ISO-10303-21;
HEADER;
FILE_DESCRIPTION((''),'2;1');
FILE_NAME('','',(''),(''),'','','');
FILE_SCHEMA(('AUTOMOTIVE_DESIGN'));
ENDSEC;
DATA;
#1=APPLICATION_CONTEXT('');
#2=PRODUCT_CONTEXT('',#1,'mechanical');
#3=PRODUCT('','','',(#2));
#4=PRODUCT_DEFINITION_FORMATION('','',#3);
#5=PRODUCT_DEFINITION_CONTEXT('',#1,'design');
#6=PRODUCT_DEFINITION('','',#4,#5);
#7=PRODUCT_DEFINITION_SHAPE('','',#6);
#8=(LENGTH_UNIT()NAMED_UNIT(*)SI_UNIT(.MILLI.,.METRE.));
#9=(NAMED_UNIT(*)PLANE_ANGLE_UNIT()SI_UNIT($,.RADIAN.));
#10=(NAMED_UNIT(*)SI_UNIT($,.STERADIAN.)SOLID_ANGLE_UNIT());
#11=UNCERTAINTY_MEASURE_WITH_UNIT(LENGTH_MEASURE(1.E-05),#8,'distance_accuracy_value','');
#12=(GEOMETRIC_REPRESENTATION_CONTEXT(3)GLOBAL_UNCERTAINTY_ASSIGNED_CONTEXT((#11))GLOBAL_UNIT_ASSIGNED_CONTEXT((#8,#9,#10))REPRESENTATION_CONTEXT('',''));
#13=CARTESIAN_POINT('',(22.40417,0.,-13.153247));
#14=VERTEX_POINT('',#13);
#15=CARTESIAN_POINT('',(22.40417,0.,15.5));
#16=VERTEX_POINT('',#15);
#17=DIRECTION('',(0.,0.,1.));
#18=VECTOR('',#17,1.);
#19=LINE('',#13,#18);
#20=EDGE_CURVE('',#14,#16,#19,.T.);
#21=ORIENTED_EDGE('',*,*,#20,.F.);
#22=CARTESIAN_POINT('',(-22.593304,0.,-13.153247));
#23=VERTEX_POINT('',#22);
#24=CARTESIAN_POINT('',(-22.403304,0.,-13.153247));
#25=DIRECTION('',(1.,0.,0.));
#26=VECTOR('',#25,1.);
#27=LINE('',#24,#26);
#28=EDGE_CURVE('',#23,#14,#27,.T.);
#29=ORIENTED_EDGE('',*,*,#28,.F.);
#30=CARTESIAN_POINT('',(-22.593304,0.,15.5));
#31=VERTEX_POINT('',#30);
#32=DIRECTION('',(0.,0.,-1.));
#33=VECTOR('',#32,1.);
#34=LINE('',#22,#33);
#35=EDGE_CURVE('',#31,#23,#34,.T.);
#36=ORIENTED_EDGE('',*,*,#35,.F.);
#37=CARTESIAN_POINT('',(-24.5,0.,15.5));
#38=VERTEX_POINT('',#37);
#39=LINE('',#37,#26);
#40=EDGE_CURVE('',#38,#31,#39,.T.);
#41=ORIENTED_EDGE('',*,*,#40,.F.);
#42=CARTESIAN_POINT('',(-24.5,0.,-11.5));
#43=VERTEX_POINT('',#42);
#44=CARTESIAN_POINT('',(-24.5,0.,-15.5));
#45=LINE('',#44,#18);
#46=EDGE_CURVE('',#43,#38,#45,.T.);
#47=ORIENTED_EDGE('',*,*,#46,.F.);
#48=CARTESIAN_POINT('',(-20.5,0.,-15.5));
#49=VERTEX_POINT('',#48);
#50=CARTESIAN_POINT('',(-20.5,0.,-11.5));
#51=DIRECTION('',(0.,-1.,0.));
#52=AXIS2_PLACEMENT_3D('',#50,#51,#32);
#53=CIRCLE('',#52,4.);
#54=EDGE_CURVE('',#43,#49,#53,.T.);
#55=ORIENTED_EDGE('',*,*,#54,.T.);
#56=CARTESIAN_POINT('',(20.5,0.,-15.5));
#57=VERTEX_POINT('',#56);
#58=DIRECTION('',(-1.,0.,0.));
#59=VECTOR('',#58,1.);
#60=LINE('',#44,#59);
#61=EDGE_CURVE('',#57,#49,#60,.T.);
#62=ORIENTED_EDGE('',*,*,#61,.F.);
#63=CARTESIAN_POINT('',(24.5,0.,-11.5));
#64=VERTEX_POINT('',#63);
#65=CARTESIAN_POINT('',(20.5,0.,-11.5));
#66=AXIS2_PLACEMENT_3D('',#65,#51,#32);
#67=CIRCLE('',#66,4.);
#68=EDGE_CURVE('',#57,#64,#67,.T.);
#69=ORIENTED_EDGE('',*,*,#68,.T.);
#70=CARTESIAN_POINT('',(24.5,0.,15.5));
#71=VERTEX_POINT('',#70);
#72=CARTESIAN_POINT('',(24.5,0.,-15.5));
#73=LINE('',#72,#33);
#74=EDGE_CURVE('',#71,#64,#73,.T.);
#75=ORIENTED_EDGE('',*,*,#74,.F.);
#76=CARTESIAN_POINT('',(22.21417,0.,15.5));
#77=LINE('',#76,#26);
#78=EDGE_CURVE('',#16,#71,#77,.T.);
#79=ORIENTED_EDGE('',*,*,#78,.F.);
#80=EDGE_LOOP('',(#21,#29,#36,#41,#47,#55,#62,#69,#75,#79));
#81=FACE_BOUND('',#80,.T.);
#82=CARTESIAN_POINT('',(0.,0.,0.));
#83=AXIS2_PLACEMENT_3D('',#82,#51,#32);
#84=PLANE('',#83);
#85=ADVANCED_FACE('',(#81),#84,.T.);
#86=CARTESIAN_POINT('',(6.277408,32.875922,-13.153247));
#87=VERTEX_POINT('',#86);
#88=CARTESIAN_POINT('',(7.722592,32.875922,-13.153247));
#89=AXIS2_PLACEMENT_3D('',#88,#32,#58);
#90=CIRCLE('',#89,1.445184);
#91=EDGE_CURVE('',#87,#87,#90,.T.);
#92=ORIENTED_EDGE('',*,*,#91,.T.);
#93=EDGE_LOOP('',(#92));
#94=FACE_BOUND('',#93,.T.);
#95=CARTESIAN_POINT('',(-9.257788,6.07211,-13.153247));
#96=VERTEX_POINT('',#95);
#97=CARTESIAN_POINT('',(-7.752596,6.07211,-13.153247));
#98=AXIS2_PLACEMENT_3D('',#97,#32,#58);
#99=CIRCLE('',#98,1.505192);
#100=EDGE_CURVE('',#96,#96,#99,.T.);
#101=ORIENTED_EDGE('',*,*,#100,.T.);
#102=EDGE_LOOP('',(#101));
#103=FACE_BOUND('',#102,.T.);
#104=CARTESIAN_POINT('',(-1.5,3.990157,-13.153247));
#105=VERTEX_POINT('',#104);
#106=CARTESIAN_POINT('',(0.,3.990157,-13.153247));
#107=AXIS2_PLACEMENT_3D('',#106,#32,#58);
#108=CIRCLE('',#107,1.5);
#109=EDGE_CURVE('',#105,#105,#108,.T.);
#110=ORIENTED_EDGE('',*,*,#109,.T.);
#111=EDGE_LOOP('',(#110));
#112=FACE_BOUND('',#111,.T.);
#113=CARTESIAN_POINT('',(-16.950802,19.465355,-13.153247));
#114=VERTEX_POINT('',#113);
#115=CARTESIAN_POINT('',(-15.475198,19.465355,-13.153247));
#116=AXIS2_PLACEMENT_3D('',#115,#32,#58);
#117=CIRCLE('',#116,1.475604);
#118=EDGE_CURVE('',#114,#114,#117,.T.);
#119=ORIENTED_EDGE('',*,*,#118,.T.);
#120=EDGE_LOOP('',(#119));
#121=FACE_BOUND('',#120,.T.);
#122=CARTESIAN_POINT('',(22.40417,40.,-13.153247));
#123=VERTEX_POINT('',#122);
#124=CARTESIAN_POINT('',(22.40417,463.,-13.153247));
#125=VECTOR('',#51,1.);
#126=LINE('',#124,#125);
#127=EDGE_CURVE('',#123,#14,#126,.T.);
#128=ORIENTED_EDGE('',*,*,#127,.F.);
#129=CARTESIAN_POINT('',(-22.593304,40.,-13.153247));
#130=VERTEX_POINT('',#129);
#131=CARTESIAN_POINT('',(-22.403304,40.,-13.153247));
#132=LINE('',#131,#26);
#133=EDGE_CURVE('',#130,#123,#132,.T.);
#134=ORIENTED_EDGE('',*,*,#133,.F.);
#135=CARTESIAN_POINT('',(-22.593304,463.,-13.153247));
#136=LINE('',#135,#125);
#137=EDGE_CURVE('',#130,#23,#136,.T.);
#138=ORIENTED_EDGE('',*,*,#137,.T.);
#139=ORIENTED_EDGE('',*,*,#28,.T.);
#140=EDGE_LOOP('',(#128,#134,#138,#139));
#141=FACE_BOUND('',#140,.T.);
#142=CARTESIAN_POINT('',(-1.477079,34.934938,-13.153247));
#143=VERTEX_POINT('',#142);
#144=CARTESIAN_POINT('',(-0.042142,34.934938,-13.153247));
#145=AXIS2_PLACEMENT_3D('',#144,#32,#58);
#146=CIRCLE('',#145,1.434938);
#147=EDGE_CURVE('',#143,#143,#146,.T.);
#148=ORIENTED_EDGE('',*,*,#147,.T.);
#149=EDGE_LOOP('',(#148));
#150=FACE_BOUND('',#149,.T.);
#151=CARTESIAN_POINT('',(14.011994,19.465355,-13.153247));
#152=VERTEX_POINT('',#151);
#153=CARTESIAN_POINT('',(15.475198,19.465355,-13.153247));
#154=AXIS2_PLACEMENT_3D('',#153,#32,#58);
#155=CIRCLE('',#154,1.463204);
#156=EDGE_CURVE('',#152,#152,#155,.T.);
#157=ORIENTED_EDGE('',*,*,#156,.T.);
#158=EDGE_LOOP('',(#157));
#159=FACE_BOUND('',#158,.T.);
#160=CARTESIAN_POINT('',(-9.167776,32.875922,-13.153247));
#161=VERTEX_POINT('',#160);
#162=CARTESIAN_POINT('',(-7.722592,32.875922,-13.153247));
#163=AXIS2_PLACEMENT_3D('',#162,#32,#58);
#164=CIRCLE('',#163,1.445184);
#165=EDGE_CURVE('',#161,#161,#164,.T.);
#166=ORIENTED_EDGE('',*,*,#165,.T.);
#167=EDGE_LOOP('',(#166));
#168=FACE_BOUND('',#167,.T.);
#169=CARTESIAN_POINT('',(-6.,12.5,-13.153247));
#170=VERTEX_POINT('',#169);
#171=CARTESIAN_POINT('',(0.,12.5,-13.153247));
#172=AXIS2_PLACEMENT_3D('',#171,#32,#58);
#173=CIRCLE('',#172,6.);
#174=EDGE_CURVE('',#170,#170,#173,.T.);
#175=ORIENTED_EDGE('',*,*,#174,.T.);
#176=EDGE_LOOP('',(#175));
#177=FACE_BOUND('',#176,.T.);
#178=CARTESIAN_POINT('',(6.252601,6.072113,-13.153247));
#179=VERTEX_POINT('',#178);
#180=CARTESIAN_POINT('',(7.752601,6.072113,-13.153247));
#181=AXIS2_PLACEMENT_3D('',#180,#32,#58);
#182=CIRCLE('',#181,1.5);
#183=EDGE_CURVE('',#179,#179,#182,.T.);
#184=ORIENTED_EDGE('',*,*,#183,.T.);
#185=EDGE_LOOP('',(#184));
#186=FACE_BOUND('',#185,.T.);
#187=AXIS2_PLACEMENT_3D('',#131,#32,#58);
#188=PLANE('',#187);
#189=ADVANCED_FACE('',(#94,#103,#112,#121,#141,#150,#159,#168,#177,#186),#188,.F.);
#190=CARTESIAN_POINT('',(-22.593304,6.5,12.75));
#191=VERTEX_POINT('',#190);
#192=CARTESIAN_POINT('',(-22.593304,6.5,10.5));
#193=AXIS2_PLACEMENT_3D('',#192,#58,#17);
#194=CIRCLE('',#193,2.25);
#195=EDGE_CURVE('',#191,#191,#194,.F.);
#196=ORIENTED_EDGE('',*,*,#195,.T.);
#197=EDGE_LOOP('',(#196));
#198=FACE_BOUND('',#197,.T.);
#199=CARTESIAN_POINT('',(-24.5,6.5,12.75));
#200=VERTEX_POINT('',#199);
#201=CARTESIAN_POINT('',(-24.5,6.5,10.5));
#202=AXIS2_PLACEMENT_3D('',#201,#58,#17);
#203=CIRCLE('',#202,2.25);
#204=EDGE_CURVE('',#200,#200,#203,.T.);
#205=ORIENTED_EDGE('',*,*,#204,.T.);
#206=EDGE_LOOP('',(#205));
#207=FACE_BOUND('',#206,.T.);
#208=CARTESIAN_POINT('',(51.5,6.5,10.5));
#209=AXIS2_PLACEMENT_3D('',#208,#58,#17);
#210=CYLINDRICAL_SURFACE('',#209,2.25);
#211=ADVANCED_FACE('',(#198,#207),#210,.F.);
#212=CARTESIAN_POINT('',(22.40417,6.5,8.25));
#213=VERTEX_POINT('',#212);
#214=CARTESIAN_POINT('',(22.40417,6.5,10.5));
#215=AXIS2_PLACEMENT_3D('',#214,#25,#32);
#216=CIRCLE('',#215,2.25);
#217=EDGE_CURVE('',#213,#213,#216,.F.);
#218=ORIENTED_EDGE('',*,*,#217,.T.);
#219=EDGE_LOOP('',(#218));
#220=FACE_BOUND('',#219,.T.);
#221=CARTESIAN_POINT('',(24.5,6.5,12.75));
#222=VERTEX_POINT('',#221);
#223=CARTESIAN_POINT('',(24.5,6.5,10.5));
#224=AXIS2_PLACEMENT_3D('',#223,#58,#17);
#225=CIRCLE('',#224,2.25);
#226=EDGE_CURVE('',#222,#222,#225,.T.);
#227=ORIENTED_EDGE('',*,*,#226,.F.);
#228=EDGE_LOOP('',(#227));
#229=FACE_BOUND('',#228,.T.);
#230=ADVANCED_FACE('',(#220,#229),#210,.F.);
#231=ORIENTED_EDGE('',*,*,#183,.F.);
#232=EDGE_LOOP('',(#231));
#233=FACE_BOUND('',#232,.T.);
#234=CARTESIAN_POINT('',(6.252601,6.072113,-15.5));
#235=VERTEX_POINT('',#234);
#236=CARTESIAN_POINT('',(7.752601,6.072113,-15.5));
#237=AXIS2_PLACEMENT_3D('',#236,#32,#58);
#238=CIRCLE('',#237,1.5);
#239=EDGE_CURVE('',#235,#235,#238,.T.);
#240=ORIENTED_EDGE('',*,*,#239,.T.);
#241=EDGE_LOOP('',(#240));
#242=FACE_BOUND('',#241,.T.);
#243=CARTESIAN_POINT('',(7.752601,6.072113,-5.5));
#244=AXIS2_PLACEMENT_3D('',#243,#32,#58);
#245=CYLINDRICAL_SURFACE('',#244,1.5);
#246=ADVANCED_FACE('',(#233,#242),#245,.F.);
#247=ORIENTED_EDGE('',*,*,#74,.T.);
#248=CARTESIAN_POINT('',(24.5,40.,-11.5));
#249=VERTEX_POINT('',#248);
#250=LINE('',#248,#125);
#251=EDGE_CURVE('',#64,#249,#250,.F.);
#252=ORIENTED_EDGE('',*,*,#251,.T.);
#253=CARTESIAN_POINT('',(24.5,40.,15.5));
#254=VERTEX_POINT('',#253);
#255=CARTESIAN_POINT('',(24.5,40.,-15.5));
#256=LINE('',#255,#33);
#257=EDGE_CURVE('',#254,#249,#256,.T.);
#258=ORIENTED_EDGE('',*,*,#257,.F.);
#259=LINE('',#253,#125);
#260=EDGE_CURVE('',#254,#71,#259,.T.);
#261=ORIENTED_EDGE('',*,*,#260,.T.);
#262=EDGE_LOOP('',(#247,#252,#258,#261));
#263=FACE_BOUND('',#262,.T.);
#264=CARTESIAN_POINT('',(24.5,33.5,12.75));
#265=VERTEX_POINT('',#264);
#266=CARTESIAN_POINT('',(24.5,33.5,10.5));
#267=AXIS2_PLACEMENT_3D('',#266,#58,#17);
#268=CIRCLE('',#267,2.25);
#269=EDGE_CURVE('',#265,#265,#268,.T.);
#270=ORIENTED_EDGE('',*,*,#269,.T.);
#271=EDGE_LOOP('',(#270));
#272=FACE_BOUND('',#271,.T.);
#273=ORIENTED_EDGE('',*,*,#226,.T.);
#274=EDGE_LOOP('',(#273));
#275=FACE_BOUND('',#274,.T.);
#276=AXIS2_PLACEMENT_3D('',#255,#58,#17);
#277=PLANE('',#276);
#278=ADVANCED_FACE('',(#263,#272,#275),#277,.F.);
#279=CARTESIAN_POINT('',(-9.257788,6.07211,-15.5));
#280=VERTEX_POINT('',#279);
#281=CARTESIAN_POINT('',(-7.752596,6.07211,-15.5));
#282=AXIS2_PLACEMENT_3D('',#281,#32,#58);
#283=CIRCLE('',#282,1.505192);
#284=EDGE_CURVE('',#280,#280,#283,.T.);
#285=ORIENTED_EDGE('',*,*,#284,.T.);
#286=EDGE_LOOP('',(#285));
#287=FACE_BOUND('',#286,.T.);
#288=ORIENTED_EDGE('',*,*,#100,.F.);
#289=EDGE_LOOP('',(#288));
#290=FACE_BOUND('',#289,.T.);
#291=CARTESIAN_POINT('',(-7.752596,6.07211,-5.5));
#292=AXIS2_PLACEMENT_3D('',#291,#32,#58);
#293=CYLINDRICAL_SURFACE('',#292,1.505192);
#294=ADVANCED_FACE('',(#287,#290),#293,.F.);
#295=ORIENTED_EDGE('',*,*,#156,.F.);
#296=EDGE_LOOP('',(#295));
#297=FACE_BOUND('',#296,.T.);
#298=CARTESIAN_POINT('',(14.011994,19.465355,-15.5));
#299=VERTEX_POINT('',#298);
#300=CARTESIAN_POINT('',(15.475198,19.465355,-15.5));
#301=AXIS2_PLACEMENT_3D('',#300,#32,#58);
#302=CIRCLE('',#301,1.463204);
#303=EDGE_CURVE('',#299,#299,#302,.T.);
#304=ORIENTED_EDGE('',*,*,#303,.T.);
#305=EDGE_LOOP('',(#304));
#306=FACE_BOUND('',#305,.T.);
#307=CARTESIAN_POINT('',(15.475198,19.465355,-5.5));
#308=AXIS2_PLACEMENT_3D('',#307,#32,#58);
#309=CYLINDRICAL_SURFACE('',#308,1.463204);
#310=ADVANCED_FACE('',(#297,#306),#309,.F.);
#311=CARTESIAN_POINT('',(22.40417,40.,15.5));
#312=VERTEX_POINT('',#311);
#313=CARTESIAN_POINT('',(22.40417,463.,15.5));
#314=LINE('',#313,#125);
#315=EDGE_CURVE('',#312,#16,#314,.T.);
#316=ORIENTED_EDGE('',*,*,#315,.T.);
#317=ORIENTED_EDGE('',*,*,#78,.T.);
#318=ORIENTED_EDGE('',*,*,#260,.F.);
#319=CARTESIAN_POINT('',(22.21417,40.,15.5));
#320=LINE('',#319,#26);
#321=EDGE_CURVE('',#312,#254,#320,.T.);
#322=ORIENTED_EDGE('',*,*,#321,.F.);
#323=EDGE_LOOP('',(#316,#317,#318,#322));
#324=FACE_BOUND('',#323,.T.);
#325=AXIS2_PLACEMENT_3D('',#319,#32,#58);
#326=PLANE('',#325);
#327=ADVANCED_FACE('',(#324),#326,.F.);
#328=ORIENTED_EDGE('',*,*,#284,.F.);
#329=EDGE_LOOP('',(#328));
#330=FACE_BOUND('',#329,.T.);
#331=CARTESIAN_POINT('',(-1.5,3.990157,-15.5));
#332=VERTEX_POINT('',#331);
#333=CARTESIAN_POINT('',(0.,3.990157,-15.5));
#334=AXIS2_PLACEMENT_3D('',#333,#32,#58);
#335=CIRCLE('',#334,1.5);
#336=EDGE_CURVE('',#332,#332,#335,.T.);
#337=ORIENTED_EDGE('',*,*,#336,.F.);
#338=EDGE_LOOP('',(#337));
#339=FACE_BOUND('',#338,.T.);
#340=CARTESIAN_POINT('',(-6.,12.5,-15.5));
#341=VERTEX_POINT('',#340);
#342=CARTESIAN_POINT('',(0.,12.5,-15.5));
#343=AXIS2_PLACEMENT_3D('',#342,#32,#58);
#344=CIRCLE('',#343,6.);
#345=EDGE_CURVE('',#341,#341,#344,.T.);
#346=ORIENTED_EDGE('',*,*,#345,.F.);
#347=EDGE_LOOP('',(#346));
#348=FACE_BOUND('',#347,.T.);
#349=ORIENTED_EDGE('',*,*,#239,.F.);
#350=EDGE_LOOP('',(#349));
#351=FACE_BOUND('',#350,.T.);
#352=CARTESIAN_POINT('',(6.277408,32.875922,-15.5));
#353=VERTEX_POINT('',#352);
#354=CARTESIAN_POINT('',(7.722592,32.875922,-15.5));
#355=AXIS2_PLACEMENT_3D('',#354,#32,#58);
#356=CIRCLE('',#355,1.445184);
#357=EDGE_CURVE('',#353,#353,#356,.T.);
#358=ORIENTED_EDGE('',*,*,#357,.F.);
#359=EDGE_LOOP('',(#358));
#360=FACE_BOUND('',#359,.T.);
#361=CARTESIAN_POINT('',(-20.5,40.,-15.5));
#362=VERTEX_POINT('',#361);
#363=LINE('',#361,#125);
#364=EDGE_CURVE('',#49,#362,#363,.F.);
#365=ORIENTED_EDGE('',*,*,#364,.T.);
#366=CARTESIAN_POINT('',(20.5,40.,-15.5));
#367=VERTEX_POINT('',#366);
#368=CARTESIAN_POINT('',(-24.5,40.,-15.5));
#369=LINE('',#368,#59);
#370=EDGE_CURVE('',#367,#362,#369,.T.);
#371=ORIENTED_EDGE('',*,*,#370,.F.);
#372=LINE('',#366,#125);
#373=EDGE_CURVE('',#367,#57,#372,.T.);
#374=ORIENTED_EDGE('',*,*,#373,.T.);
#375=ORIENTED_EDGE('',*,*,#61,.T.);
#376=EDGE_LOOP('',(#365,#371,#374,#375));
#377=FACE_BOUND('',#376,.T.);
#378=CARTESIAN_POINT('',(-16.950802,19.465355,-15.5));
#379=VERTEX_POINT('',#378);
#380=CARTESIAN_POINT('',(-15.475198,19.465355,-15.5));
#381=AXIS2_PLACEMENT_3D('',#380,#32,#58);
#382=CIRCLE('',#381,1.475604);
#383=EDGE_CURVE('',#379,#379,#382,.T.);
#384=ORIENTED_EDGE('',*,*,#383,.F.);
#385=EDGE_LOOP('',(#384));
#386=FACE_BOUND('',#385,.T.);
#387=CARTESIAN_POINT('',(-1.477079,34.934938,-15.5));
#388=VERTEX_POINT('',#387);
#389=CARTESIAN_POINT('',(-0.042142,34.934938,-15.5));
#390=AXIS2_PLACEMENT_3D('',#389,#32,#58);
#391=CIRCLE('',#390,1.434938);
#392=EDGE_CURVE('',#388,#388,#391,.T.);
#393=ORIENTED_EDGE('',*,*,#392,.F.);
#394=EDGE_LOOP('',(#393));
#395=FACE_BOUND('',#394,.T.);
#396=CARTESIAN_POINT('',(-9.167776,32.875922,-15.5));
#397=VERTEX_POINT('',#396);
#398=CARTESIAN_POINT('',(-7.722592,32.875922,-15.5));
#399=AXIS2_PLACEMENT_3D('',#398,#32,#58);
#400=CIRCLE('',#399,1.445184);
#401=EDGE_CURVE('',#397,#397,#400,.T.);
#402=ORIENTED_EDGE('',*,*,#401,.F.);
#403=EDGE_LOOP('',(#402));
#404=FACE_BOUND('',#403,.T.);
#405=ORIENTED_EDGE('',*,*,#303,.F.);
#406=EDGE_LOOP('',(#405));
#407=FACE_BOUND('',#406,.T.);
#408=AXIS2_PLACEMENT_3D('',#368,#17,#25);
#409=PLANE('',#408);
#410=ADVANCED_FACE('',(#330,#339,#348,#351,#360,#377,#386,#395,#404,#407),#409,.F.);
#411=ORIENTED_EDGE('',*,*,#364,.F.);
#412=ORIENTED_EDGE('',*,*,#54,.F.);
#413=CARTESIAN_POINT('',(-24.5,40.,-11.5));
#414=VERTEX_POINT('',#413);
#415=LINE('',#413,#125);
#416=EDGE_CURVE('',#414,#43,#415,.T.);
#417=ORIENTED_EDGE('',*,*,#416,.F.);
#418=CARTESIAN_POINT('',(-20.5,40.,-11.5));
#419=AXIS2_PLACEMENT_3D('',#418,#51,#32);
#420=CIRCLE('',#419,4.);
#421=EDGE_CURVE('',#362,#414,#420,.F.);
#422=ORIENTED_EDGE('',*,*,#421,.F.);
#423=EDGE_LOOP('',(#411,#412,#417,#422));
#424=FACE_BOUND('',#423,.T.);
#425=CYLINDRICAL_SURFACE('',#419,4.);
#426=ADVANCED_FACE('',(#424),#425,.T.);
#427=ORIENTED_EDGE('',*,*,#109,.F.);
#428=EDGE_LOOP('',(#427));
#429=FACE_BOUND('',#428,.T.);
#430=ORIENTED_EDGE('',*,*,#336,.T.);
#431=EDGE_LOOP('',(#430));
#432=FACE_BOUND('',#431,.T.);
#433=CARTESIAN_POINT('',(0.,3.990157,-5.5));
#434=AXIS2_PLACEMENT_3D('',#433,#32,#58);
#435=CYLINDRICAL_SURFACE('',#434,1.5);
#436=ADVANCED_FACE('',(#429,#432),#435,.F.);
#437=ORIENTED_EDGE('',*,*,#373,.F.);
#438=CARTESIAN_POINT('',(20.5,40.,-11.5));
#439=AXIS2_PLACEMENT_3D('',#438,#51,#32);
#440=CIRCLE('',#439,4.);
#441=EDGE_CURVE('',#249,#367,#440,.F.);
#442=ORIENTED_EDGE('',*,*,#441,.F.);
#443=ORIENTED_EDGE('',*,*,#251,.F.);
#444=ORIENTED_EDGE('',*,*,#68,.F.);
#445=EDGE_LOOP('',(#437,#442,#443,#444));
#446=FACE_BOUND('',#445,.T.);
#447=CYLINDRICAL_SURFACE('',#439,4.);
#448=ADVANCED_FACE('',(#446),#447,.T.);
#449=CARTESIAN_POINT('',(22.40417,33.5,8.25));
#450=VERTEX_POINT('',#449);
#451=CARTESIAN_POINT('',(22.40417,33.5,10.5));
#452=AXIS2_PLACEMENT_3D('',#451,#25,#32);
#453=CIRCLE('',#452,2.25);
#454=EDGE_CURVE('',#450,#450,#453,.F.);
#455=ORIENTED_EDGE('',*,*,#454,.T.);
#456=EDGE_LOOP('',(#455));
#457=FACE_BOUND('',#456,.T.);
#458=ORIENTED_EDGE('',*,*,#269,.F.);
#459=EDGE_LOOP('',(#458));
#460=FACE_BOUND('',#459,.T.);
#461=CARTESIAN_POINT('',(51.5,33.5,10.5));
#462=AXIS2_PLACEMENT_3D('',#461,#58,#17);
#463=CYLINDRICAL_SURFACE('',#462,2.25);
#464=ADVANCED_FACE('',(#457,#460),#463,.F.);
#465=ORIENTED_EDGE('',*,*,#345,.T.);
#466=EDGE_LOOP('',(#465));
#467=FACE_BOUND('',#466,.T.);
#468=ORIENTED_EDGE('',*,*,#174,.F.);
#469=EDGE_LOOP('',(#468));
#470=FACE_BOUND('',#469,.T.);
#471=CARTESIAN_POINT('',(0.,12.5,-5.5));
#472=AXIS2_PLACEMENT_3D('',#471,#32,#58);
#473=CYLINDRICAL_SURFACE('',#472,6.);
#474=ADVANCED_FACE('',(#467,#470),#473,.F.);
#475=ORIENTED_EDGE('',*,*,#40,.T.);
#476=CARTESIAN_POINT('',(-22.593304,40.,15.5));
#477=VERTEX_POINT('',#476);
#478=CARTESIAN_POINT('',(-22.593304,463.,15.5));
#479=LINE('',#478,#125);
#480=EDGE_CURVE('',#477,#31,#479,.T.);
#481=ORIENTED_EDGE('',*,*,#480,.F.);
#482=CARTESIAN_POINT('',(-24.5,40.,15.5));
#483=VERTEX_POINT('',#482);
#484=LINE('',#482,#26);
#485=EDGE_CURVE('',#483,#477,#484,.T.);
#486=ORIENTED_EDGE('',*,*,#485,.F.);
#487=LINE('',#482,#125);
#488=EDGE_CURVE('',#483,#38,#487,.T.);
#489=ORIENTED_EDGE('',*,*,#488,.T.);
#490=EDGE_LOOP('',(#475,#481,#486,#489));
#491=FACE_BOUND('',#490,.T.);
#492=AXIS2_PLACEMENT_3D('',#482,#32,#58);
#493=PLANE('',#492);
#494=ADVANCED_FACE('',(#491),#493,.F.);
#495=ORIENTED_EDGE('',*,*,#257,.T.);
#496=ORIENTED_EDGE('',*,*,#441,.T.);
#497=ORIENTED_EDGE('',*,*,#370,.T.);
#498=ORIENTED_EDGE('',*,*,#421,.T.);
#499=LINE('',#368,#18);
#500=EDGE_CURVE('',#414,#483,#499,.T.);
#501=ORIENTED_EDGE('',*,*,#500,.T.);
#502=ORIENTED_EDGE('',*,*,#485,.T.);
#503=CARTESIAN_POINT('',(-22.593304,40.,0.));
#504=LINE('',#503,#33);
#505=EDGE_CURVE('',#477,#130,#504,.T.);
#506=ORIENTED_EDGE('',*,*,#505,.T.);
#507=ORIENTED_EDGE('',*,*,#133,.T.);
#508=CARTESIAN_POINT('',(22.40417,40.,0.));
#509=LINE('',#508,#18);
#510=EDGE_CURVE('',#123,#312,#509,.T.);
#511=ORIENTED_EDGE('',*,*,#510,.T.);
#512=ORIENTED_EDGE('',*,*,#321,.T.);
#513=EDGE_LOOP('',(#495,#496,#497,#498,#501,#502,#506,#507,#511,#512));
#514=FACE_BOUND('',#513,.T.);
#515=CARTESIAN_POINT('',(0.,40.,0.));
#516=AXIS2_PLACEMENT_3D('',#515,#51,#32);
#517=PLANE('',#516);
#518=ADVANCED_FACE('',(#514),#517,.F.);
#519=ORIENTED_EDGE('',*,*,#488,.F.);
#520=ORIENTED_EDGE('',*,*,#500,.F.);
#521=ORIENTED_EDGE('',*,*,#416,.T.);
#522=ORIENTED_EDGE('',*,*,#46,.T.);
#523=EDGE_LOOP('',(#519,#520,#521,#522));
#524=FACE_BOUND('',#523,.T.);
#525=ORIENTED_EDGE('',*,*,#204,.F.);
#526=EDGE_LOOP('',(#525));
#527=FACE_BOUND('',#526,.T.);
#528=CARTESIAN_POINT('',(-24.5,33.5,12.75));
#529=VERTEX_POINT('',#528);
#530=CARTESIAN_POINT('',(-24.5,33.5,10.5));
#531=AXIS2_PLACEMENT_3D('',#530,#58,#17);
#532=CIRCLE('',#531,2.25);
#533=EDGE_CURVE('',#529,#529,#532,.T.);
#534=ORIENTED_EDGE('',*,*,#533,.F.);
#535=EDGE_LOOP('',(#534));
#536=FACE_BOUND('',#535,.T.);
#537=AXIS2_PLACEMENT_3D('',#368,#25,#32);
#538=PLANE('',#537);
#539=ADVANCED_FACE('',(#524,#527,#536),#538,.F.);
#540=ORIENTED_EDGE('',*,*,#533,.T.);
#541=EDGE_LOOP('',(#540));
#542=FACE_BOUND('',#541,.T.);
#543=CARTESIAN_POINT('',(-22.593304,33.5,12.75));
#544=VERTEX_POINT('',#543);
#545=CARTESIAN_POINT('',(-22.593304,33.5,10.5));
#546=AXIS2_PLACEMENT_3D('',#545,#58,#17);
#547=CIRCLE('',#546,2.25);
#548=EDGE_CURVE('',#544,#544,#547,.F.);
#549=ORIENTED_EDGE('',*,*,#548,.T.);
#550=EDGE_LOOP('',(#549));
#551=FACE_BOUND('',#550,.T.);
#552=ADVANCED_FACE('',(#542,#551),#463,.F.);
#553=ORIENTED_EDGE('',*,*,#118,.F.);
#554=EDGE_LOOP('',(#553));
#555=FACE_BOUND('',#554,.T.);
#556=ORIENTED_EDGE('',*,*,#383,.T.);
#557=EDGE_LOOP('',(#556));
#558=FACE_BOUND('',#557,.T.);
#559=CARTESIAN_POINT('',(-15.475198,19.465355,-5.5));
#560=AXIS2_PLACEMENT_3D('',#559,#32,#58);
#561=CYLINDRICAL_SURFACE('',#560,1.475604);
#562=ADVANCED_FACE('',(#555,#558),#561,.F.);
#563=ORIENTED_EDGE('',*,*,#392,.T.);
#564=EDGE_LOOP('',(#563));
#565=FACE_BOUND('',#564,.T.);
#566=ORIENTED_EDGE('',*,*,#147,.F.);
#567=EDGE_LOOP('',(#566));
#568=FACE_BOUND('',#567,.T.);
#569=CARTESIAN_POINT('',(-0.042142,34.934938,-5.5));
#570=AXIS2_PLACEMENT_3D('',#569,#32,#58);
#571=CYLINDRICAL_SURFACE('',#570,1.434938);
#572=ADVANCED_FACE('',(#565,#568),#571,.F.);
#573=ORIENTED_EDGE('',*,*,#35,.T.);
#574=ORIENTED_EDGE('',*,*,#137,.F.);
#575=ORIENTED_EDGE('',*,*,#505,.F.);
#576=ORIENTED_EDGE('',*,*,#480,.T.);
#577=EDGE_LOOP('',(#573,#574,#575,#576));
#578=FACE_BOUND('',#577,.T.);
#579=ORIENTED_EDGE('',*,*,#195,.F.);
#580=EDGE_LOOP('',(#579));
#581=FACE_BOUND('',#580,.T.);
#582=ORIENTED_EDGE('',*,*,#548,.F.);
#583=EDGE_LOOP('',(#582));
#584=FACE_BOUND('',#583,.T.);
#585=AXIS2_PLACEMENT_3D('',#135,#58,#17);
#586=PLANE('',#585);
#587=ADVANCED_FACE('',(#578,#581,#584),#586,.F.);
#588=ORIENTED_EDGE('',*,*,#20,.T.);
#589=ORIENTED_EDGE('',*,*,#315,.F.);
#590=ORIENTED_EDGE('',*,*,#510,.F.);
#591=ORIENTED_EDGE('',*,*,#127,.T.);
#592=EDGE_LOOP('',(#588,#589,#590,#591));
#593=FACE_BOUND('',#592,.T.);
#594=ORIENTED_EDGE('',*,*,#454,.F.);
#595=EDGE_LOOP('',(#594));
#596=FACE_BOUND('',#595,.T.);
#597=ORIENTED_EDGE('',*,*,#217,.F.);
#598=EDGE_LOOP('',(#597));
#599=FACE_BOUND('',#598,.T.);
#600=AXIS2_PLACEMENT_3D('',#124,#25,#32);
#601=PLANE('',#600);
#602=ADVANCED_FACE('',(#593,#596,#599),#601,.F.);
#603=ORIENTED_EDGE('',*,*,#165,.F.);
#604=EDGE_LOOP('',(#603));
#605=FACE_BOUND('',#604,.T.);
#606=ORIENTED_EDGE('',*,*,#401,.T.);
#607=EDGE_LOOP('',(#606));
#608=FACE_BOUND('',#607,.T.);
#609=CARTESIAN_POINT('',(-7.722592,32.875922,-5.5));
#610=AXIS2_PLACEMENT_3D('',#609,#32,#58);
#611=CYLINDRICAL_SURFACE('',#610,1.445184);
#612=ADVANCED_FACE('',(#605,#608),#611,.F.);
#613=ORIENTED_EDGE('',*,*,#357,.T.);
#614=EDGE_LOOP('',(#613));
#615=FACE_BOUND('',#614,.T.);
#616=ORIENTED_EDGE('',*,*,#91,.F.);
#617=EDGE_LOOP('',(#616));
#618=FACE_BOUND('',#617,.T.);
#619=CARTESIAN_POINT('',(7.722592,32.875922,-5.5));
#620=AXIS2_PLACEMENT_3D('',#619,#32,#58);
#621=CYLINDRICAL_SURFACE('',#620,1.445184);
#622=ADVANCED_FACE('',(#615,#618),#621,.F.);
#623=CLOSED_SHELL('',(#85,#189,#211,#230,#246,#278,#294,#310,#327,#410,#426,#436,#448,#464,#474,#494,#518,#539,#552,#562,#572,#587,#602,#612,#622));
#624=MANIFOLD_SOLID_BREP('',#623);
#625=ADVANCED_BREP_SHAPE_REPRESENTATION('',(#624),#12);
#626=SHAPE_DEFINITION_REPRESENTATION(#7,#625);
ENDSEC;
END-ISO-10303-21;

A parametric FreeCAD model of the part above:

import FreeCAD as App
import Part
import Sketcher
from FreeCAD import Vector
Q = App.Units.Quantity


def edges_at(feature, points):
    """Names of the edges that pass closest to the given points."""
    edges = feature.Shape.Edges
    near = lambda p: min(range(len(edges)), key=lambda i: edges[i].distToShape(Part.Vertex(*p))[0])
    return sorted({f"Edge{near(p) + 1}" for p in points})


def add_polygon(sketch, points):
    """Adds a closed chain of lines whose ends are joined by coincident constraints."""
    first, n = sketch.GeometryCount, len(points)
    for a, b in zip(points, points[1:] + points[:1]):
        sketch.addGeometry(Part.LineSegment(App.Vector(*a, 0), App.Vector(*b, 0)), False)
    for i in range(n):
        sketch.addConstraint(Sketcher.Constraint("Coincident", first + i, 2, first + (i + 1) % n, 1))

doc = App.newDocument("Part")
body = doc.addObject("PartDesign::Body", "Body")

# Sketch on XZ plane
sketch1 = body.newObject("Sketcher::SketchObject", "Sketch")
sketch1.AttachmentSupport = (doc.getObject("XZ_Plane"), [""])
sketch1.MapMode = "FlatFace"
add_polygon(sketch1, [(-22.4, 15.5), (-22.4, -13.2), (22.2, -13.2), (22.2, 15.5), (24.5, 15.5), (24.5, -15.5), (-24.5, -15.5), (-24.5, 15.5)])  # lines 0-7
sketch1.addConstraint(Sketcher.Constraint("Vertical", 0))
sketch1.addConstraint(Sketcher.Constraint("Horizontal", 1))
sketch1.addConstraint(Sketcher.Constraint("Vertical", 2))
sketch1.addConstraint(Sketcher.Constraint("Horizontal", 3))
sketch1.addConstraint(Sketcher.Constraint("Vertical", 4))
sketch1.addConstraint(Sketcher.Constraint("Horizontal", 5))
sketch1.addConstraint(Sketcher.Constraint("Vertical", 6))
sketch1.addConstraint(Sketcher.Constraint("Horizontal", 7))
sketch1.addConstraint(Sketcher.Constraint("Symmetric", 3, 2, 5, 2, -1, 1))
sketch1.addConstraint(Sketcher.Constraint("Horizontal", 3, 2, 6, 2))
sketch1.addConstraint(Sketcher.Constraint("DistanceX", 5, 2, 5, 1, Q("49 mm")))
sketch1.addConstraint(Sketcher.Constraint("DistanceY", 4, 2, 4, 1, Q("31 mm")))
sketch1.addConstraint(Sketcher.Constraint("DistanceX", 3, 1, 3, 2, Q("2.28583 mm")))
sketch1.addConstraint(Sketcher.Constraint("DistanceX", 1, 1, 1, 2, Q("44.617475 mm")))
sketch1.addConstraint(Sketcher.Constraint("DistanceY", 0, 2, 0, 1, Q("28.653247 mm")))
pad1 = body.newObject("PartDesign::Pad", "Pad")
pad1.Profile = sketch1
pad1.Length = 40
pad1.Reversed = True
doc.recompute()

fillet = body.newObject("PartDesign::Fillet", "Fillet")
fillet.Base = (pad1, edges_at(pad1, [(-24.5, 20, -15.5), (24.5, 20, -15.5)]))
fillet.Radius = 4

# Sketch on XY plane
sketch2 = body.newObject("Sketcher::SketchObject", "Sketch001")
sketch2.AttachmentSupport = (doc.getObject("XY_Plane"), [""])
sketch2.MapMode = "FlatFace"
sketch2.AttachmentOffset = App.Placement(Vector(0, 0, -15.5), App.Rotation())
sketch2.addGeometry(Part.Circle(Vector(-14, 20, 0), Vector(0, 0, 1), 1.5), False)
sketch2.addGeometry(Part.Circle(Vector(17, 20, 0), Vector(0, 0, 1), 1.5), False)
sketch2.addGeometry(Part.Circle(Vector(1.5, 4.5, 0), Vector(0, 0, 1), 1.5), False)
sketch2.addGeometry(Part.Circle(Vector(1.5, 35.5, 0), Vector(0, 0, 1), 1.5), False)
sketch2.addGeometry(Part.Circle(Vector(9.2, 6.6, 0), Vector(0, 0, 1), 1.5), False)
sketch2.addGeometry(Part.Circle(Vector(9.2, 33.4, 0), Vector(0, 0, 1), 1.5), False)
sketch2.addGeometry(Part.Circle(Vector(-6.2, 33.4, 0), Vector(0, 0, 1), 1.5), False)
sketch2.addGeometry(Part.Circle(Vector(-6.2, 6.6, 0), Vector(0, 0, 1), 1.5), False)
sketch2.addGeometry(Part.Circle(Vector(1.5, 13, 0), Vector(0, 0, 1), 6), False)
sketch2.addConstraint(Sketcher.Constraint("Equal", 0, 1))
sketch2.addConstraint(Sketcher.Constraint("Equal", 1, 2))
sketch2.addConstraint(Sketcher.Constraint("Equal", 2, 3))
sketch2.addConstraint(Sketcher.Constraint("Equal", 3, 4))
sketch2.addConstraint(Sketcher.Constraint("Equal", 4, 5))
sketch2.addConstraint(Sketcher.Constraint("Equal", 5, 6))
sketch2.addConstraint(Sketcher.Constraint("Equal", 6, 7))
sketch2.addConstraint(Sketcher.Constraint("Horizontal", 0, 3, 1, 3))
sketch2.addConstraint(Sketcher.Constraint("Horizontal", 5, 3, 6, 3))
sketch2.addConstraint(Sketcher.Constraint("Horizontal", 4, 3, 7, 3))
sketch2.addConstraint(Sketcher.Constraint("Vertical", 2, 3, 3, 3))
sketch2.addConstraint(Sketcher.Constraint("Vertical", 4, 3, 5, 3))
sketch2.addConstraint(Sketcher.Constraint("Vertical", 6, 3, 7, 3))
sketch2.addConstraint(Sketcher.Constraint("Vertical", 3, 3, 8, 3))
sketch2.addConstraint(Sketcher.Constraint("Diameter", 0, Q("3 mm")))
sketch2.addConstraint(Sketcher.Constraint("Diameter", 8, Q("12 mm")))
sketch2.addConstraint(Sketcher.Constraint("DistanceX", 0, 3, -1, 1, Q("14 mm")))
sketch2.addConstraint(Sketcher.Constraint("DistanceY", -1, 1, 0, 3, Q("20 mm")))
sketch2.addConstraint(Sketcher.Constraint("DistanceX", -1, 1, 1, 3, Q("17 mm")))
sketch2.addConstraint(Sketcher.Constraint("DistanceY", -1, 1, 8, 3, Q("13 mm")))
sketch2.addConstraint(Sketcher.Constraint("DistanceY", 2, 3, 3, 3, Q("31 mm")))
sketch2.addConstraint(Sketcher.Constraint("DistanceX", -1, 1, 2, 3, Q("1.5 mm")))
sketch2.addConstraint(Sketcher.Constraint("DistanceY", -1, 1, 2, 3, Q("4.5 mm")))
sketch2.addConstraint(Sketcher.Constraint("DistanceX", 6, 3, 5, 3, Q("15.5 mm")))
sketch2.addConstraint(Sketcher.Constraint("DistanceX", -1, 1, 4, 3, Q("9.25 mm")))
sketch2.addConstraint(Sketcher.Constraint("DistanceY", -1, 1, 4, 3, Q("6.576606 mm")))
sketch2.addConstraint(Sketcher.Constraint("DistanceY", -1, 1, 5, 3, Q("33.423394 mm")))
pocket1 = body.newObject("PartDesign::Pocket", "Pocket")
pocket1.Profile = sketch2
pocket1.Length = 40
pocket1.Reversed = True

# Sketch on YZ plane
sketch3 = body.newObject("Sketcher::SketchObject", "Sketch002")
sketch3.AttachmentSupport = (doc.getObject("YZ_Plane"), [""])
sketch3.MapMode = "FlatFace"
sketch3.AttachmentOffset = App.Placement(Vector(0, 0, -24.5), App.Rotation())
sketch3.addGeometry(Part.Circle(Vector(6.5, 10.5, 0), Vector(0, 0, 1), 2.2), False)
sketch3.addGeometry(Part.Circle(Vector(33.5, 10.5, 0), Vector(0, 0, 1), 2.2), False)
sketch3.addConstraint(Sketcher.Constraint("Equal", 0, 1))
sketch3.addConstraint(Sketcher.Constraint("Horizontal", 0, 3, 1, 3))
sketch3.addConstraint(Sketcher.Constraint("Diameter", 0, Q("4.5 mm")))
sketch3.addConstraint(Sketcher.Constraint("DistanceX", 0, 3, 1, 3, Q("27 mm")))
sketch3.addConstraint(Sketcher.Constraint("DistanceX", -1, 1, 0, 3, Q("6.5 mm")))
sketch3.addConstraint(Sketcher.Constraint("DistanceY", -1, 1, 0, 3, Q("10.5 mm")))
pocket2 = body.newObject("PartDesign::Pocket", "Pocket001")
pocket2.Profile = sketch3
pocket2.Length = 76
pocket2.Reversed = True

# Sketch on XY plane
sketch4 = body.newObject("Sketcher::SketchObject", "Sketch003")
sketch4.AttachmentSupport = (doc.getObject("XY_Plane"), [""])
sketch4.MapMode = "FlatFace"
sketch4.AttachmentOffset = App.Placement(Vector(0, 0, -15.5), App.Rotation())
sketch4.addGeometry(Part.Circle(Vector(-6.2, 33.4, 0), Vector(0, 0, 1), 1.5), False)
sketch4.addGeometry(Part.Circle(Vector(-14, 20, 0), Vector(0, 0, 1), 1.5), False)
sketch4.addGeometry(Part.Circle(Vector(-6.2, 6.6, 0), Vector(0, 0, 1), 1.5), False)
sketch4.addGeometry(Part.Circle(Vector(1.5, 4.5, 0), Vector(0, 0, 1), 1.5), False)
sketch4.addGeometry(Part.Circle(Vector(9.2, 6.6, 0), Vector(0, 0, 1), 1.5), False)
sketch4.addGeometry(Part.Circle(Vector(17, 20, 0), Vector(0, 0, 1), 1.5), False)
sketch4.addGeometry(Part.Circle(Vector(1.5, 35.5, 0), Vector(0, 0, 1), 1.5), False)
sketch4.addGeometry(Part.Circle(Vector(9.2, 33.4, 0), Vector(0, 0, 1), 1.5), False)
sketch4.addGeometry(Part.Circle(Vector(1.5, 13, 0), Vector(0, 0, 1), 6), False)
sketch4.addConstraint(Sketcher.Constraint("Equal", 0, 1))
sketch4.addConstraint(Sketcher.Constraint("Equal", 1, 2))
sketch4.addConstraint(Sketcher.Constraint("Equal", 2, 3))
sketch4.addConstraint(Sketcher.Constraint("Equal", 3, 4))
sketch4.addConstraint(Sketcher.Constraint("Equal", 4, 5))
sketch4.addConstraint(Sketcher.Constraint("Equal", 5, 6))
sketch4.addConstraint(Sketcher.Constraint("Equal", 6, 7))
sketch4.addConstraint(Sketcher.Constraint("Horizontal", 2, 3, 4, 3))
sketch4.addConstraint(Sketcher.Constraint("Horizontal", 1, 3, 5, 3))
sketch4.addConstraint(Sketcher.Constraint("Horizontal", 0, 3, 7, 3))
sketch4.addConstraint(Sketcher.Constraint("Vertical", 0, 3, 2, 3))
sketch4.addConstraint(Sketcher.Constraint("Vertical", 3, 3, 6, 3))
sketch4.addConstraint(Sketcher.Constraint("Vertical", 4, 3, 7, 3))
sketch4.addConstraint(Sketcher.Constraint("Vertical", 6, 3, 8, 3))
sketch4.addConstraint(Sketcher.Constraint("Diameter", 0, Q("3 mm")))
sketch4.addConstraint(Sketcher.Constraint("Diameter", 8, Q("12 mm")))
sketch4.addConstraint(Sketcher.Constraint("DistanceX", 1, 3, -1, 1, Q("14 mm")))
sketch4.addConstraint(Sketcher.Constraint("DistanceY", -1, 1, 1, 3, Q("20 mm")))
sketch4.addConstraint(Sketcher.Constraint("DistanceX", -1, 1, 5, 3, Q("17 mm")))
sketch4.addConstraint(Sketcher.Constraint("DistanceY", -1, 1, 8, 3, Q("13 mm")))
sketch4.addConstraint(Sketcher.Constraint("DistanceX", -1, 1, 3, 3, Q("1.5 mm")))
sketch4.addConstraint(Sketcher.Constraint("DistanceY", -1, 1, 3, 3, Q("4.5 mm")))
sketch4.addConstraint(Sketcher.Constraint("DistanceY", -1, 1, 6, 3, Q("35.5 mm")))
sketch4.addConstraint(Sketcher.Constraint("DistanceX", 2, 3, 4, 3, Q("15.5 mm")))
sketch4.addConstraint(Sketcher.Constraint("DistanceX", 0, 3, -1, 1, Q("6.25 mm")))
sketch4.addConstraint(Sketcher.Constraint("DistanceY", -1, 1, 0, 3, Q("33.423394 mm")))
sketch4.addConstraint(Sketcher.Constraint("DistanceY", -1, 1, 2, 3, Q("6.576606 mm")))
pad2 = body.newObject("PartDesign::Pad", "Pad001")
pad2.Profile = sketch4
pad2.Length = 2.346753

# Sketch on XY plane
sketch5 = body.newObject("Sketcher::SketchObject", "Sketch004")
sketch5.AttachmentSupport = (doc.getObject("XY_Plane"), [""])
sketch5.MapMode = "FlatFace"
sketch5.AttachmentOffset = App.Placement(Vector(0, 0, -15.5), App.Rotation())
sketch5.addGeometry(Part.Circle(Vector(-15.5, 20, 0), Vector(0, 0, 1), 1.5), False)
sketch5.addGeometry(Part.Circle(Vector(0, 4.5, 0), Vector(0, 0, 1), 1.5), False)
sketch5.addGeometry(Part.Circle(Vector(15.5, 20, 0), Vector(0, 0, 1), 1.5), False)
sketch5.addGeometry(Part.Circle(Vector(0, 35.5, 0), Vector(0, 0, 1), 1.5), False)
sketch5.addGeometry(Part.Circle(Vector(-7.8, 33.4, 0), Vector(0, 0, 1), 1.5), False)
sketch5.addGeometry(Part.Circle(Vector(7.8, 33.4, 0), Vector(0, 0, 1), 1.5), False)
sketch5.addGeometry(Part.Circle(Vector(7.8, 6.6, 0), Vector(0, 0, 1), 1.5), False)
sketch5.addGeometry(Part.Circle(Vector(-7.8, 6.6, 0), Vector(0, 0, 1), 1.5), False)
sketch5.addGeometry(Part.Circle(Vector(0, 13, 0), Vector(0, 0, 1), 6), False)
sketch5.addConstraint(Sketcher.Constraint("Equal", 0, 1))
sketch5.addConstraint(Sketcher.Constraint("Equal", 1, 2))
sketch5.addConstraint(Sketcher.Constraint("Equal", 2, 3))
sketch5.addConstraint(Sketcher.Constraint("Equal", 3, 4))
sketch5.addConstraint(Sketcher.Constraint("Equal", 4, 5))
sketch5.addConstraint(Sketcher.Constraint("Equal", 5, 6))
sketch5.addConstraint(Sketcher.Constraint("Equal", 6, 7))
sketch5.addConstraint(Sketcher.Constraint("Symmetric", 0, 3, 2, 3, -2))
sketch5.addConstraint(Sketcher.Constraint("Symmetric", 4, 3, 5, 3, -2))
sketch5.addConstraint(Sketcher.Constraint("Symmetric", 6, 3, 7, 3, -2))
sketch5.addConstraint(Sketcher.Constraint("PointOnObject", 1, 3, -2))
sketch5.addConstraint(Sketcher.Constraint("PointOnObject", 3, 3, -2))
sketch5.addConstraint(Sketcher.Constraint("PointOnObject", 8, 3, -2))
sketch5.addConstraint(Sketcher.Constraint("Vertical", 5, 3, 6, 3))
sketch5.addConstraint(Sketcher.Constraint("Diameter", 0, Q("3 mm")))
sketch5.addConstraint(Sketcher.Constraint("Diameter", 8, Q("12 mm")))
sketch5.addConstraint(Sketcher.Constraint("DistanceY", -1, 1, 0, 3, Q("20 mm")))
sketch5.addConstraint(Sketcher.Constraint("DistanceY", -1, 1, 8, 3, Q("13 mm")))
sketch5.addConstraint(Sketcher.Constraint("DistanceX", 0, 3, 2, 3, Q("31 mm")))
sketch5.addConstraint(Sketcher.Constraint("DistanceY", 1, 3, 3, 3, Q("31 mm")))
sketch5.addConstraint(Sketcher.Constraint("DistanceY", -1, 1, 1, 3, Q("4.5 mm")))
sketch5.addConstraint(Sketcher.Constraint("DistanceX", 4, 3, 5, 3, Q("15.5 mm")))
sketch5.addConstraint(Sketcher.Constraint("DistanceY", -1, 1, 4, 3, Q("33.423394 mm")))
sketch5.addConstraint(Sketcher.Constraint("DistanceY", -1, 1, 6, 3, Q("6.576606 mm")))
pocket3 = body.newObject("PartDesign::Pocket", "Pocket002")
pocket3.Profile = sketch5
pocket3.Length = 10
pocket3.Reversed = True

# Sketch on XZ plane
sketch6 = body.newObject("Sketcher::SketchObject", "Sketch005")
sketch6.AttachmentSupport = (doc.getObject("XZ_Plane"), [""])
sketch6.MapMode = "FlatFace"
add_polygon(sketch6, [(-22.59, 15.5), (-22.59, -13.15), (-22.4, -13.15), (-22.4, 15.5)])  # lines 0-3
add_polygon(sketch6, [(22.21, 15.5), (22.21, -13.15), (22.4, -13.15), (22.4, 15.5)])  # lines 4-7
sketch6.addConstraint(Sketcher.Constraint("Vertical", 0))
sketch6.addConstraint(Sketcher.Constraint("Horizontal", 1))
sketch6.addConstraint(Sketcher.Constraint("Vertical", 2))
sketch6.addConstraint(Sketcher.Constraint("Horizontal", 3))
sketch6.addConstraint(Sketcher.Constraint("Vertical", 4))
sketch6.addConstraint(Sketcher.Constraint("Horizontal", 5))
sketch6.addConstraint(Sketcher.Constraint("Vertical", 6))
sketch6.addConstraint(Sketcher.Constraint("Horizontal", 7))
sketch6.addConstraint(Sketcher.Constraint("Horizontal", 1, 2, 4, 2))
sketch6.addConstraint(Sketcher.Constraint("Horizontal", 3, 2, 6, 2))
sketch6.addConstraint(Sketcher.Constraint("Equal", 3, 5))
sketch6.addConstraint(Sketcher.Constraint("DistanceX", 1, 1, 1, 2, Q("0.19 mm")))
sketch6.addConstraint(Sketcher.Constraint("DistanceY", -1, 1, 2, 2, Q("15.5 mm")))
sketch6.addConstraint(Sketcher.Constraint("DistanceY", 0, 2, 0, 1, Q("28.653247 mm")))
sketch6.addConstraint(Sketcher.Constraint("DistanceX", -1, 1, 4, 2, Q("22.21417 mm")))
sketch6.addConstraint(Sketcher.Constraint("DistanceX", 0, 2, -1, 1, Q("22.593304 mm")))
pocket4 = body.newObject("PartDesign::Pocket", "Pocket003")
pocket4.Profile = sketch6
pocket4.Length = 463

# Sketch on XY plane
sketch7 = body.newObject("Sketcher::SketchObject", "Sketch006")
sketch7.AttachmentSupport = (doc.getObject("XY_Plane"), [""])
sketch7.MapMode = "FlatFace"
sketch7.AttachmentOffset = App.Placement(Vector(0, 0, -15.5), App.Rotation())
sketch7.addGeometry(Part.Circle(Vector(0, 13, 0), Vector(0, 0, 1), 6), False)
sketch7.addConstraint(Sketcher.Constraint("PointOnObject", 0, 3, -2))
sketch7.addConstraint(Sketcher.Constraint("Diameter", 0, Q("12 mm")))
sketch7.addConstraint(Sketcher.Constraint("DistanceY", -1, 1, 0, 3, Q("13 mm")))
pad3 = body.newObject("PartDesign::Pad", "Pad002")
pad3.Profile = sketch7
pad3.Length = 2.346753

# Sketch on XY plane
sketch8 = body.newObject("Sketcher::SketchObject", "Sketch007")
sketch8.AttachmentSupport = (doc.getObject("XY_Plane"), [""])
sketch8.MapMode = "FlatFace"
sketch8.AttachmentOffset = App.Placement(Vector(0, 0, -15.5), App.Rotation())
sketch8.addGeometry(Part.Circle(Vector(0, 12, 0), Vector(0, 0, 1), 6), False)
sketch8.addConstraint(Sketcher.Constraint("PointOnObject", 0, 3, -2))
sketch8.addConstraint(Sketcher.Constraint("Diameter", 0, Q("12 mm")))
sketch8.addConstraint(Sketcher.Constraint("DistanceY", -1, 1, 0, 3, Q("12.5 mm")))
pocket5 = body.newObject("PartDesign::Pocket", "Pocket004")
pocket5.Profile = sketch8
pocket5.Length = 10
pocket5.Reversed = True

# Sketch on XY plane
sketch9 = body.newObject("Sketcher::SketchObject", "Sketch008")
sketch9.AttachmentSupport = (doc.getObject("XY_Plane"), [""])
sketch9.MapMode = "FlatFace"
sketch9.AttachmentOffset = App.Placement(Vector(0, 0, -15.5), App.Rotation())
sketch9.addGeometry(Part.Circle(Vector(-7.8, 6.6, 0), Vector(0, 0, 1), 1.5), False)
sketch9.addGeometry(Part.Circle(Vector(0, 4.5, 0), Vector(0, 0, 1), 1.5), False)
sketch9.addGeometry(Part.Circle(Vector(7.8, 6.6, 0), Vector(0, 0, 1), 1.5), False)
sketch9.addGeometry(Part.Circle(Vector(15.5, 20, 0), Vector(0, 0, 1), 1.5), False)
sketch9.addGeometry(Part.Circle(Vector(7.8, 33.4, 0), Vector(0, 0, 1), 1.5), False)
sketch9.addGeometry(Part.Circle(Vector(0, 35.5, 0), Vector(0, 0, 1), 1.5), False)
sketch9.addGeometry(Part.Circle(Vector(-7.8, 33.4, 0), Vector(0, 0, 1), 1.5), False)
sketch9.addGeometry(Part.Circle(Vector(-15.5, 20, 0), Vector(0, 0, 1), 1.5), False)
sketch9.addConstraint(Sketcher.Constraint("Equal", 0, 1))
sketch9.addConstraint(Sketcher.Constraint("Equal", 1, 2))
sketch9.addConstraint(Sketcher.Constraint("Equal", 2, 3))
sketch9.addConstraint(Sketcher.Constraint("Equal", 3, 4))
sketch9.addConstraint(Sketcher.Constraint("Equal", 4, 5))
sketch9.addConstraint(Sketcher.Constraint("Equal", 5, 6))
sketch9.addConstraint(Sketcher.Constraint("Equal", 6, 7))
sketch9.addConstraint(Sketcher.Constraint("Symmetric", 0, 3, 2, 3, -2))
sketch9.addConstraint(Sketcher.Constraint("Symmetric", 4, 3, 6, 3, -2))
sketch9.addConstraint(Sketcher.Constraint("Symmetric", 3, 3, 7, 3, -2))
sketch9.addConstraint(Sketcher.Constraint("PointOnObject", 1, 3, -2))
sketch9.addConstraint(Sketcher.Constraint("PointOnObject", 5, 3, -2))
sketch9.addConstraint(Sketcher.Constraint("Vertical", 2, 3, 4, 3))
sketch9.addConstraint(Sketcher.Constraint("Diameter", 0, Q("3 mm")))
sketch9.addConstraint(Sketcher.Constraint("DistanceY", -1, 1, 3, 3, Q("20 mm")))
sketch9.addConstraint(Sketcher.Constraint("DistanceY", 1, 3, 5, 3, Q("31 mm")))
sketch9.addConstraint(Sketcher.Constraint("DistanceY", -1, 1, 1, 3, Q("4.5 mm")))
sketch9.addConstraint(Sketcher.Constraint("DistanceX", -1, 1, 3, 3, Q("15.5 mm")))
sketch9.addConstraint(Sketcher.Constraint("DistanceX", 0, 3, 2, 3, Q("15.5 mm")))
sketch9.addConstraint(Sketcher.Constraint("DistanceY", -1, 1, 0, 3, Q("6.576606 mm")))
sketch9.addConstraint(Sketcher.Constraint("DistanceY", -1, 1, 4, 3, Q("33.423394 mm")))
pad4 = body.newObject("PartDesign::Pad", "Pad003")
pad4.Profile = sketch9
pad4.Length = 2.346753

# Sketch on XY plane
sketch10 = body.newObject("Sketcher::SketchObject", "Sketch009")
sketch10.AttachmentSupport = (doc.getObject("XY_Plane"), [""])
sketch10.MapMode = "FlatFace"
sketch10.AttachmentOffset = App.Placement(Vector(0, 0, -15.5), App.Rotation())
sketch10.addGeometry(Part.Circle(Vector(-15.5, 19.5, 0), Vector(0, 0, 1), 1.5), False)
sketch10.addGeometry(Part.Circle(Vector(15.5, 19.5, 0), Vector(0, 0, 1), 1.5), False)
sketch10.addGeometry(Part.Circle(Vector(0, 4, 0), Vector(0, 0, 1), 1.5), False)
sketch10.addGeometry(Part.Circle(Vector(0, 34.9, 0), Vector(0, 0, 1), 1.4), False)
sketch10.addGeometry(Part.Circle(Vector(-7.8, 6.1, 0), Vector(0, 0, 1), 1.5), False)
sketch10.addGeometry(Part.Circle(Vector(7.8, 6.1, 0), Vector(0, 0, 1), 1.5), False)
sketch10.addGeometry(Part.Circle(Vector(7.7, 32.9, 0), Vector(0, 0, 1), 1.4), False)
sketch10.addGeometry(Part.Circle(Vector(-7.7, 32.9, 0), Vector(0, 0, 1), 1.4), False)
sketch10.addConstraint(Sketcher.Constraint("Equal", 2, 5))
sketch10.addConstraint(Sketcher.Constraint("Equal", 6, 7))
sketch10.addConstraint(Sketcher.Constraint("Symmetric", 0, 3, 1, 3, -2))
sketch10.addConstraint(Sketcher.Constraint("Symmetric", 4, 3, 5, 3, -2))
sketch10.addConstraint(Sketcher.Constraint("Symmetric", 6, 3, 7, 3, -2))
sketch10.addConstraint(Sketcher.Constraint("PointOnObject", 2, 3, -2))
sketch10.addConstraint(Sketcher.Constraint("Diameter", 2, Q("3 mm")))
sketch10.addConstraint(Sketcher.Constraint("Diameter", 0, Q("2.951209 mm")))
sketch10.addConstraint(Sketcher.Constraint("Diameter", 6, Q("2.890368 mm")))
sketch10.addConstraint(Sketcher.Constraint("Diameter", 1, Q("2.926408 mm")))
sketch10.addConstraint(Sketcher.Constraint("Diameter", 3, Q("2.869875 mm")))
sketch10.addConstraint(Sketcher.Constraint("Diameter", 4, Q("3.010384 mm")))
sketch10.addConstraint(Sketcher.Constraint("DistanceX", -1, 1, 5, 3, Q("7.752601 mm")))
sketch10.addConstraint(Sketcher.Constraint("DistanceX", 0, 3, 4, 3, Q("7.722602 mm")))
sketch10.addConstraint(Sketcher.Constraint("DistanceX", 3, 3, -1, 1, Q("0.042142 mm")))
sketch10.addConstraint(Sketcher.Constraint("DistanceY", -1, 1, 4, 3, Q("6.07211 mm")))
sketch10.addConstraint(Sketcher.Constraint("DistanceY", -1, 1, 6, 3, Q("32.875922 mm")))
sketch10.addConstraint(Sketcher.Constraint("DistanceY", 2, 3, 3, 3, Q("30.944781 mm")))
sketch10.addConstraint(Sketcher.Constraint("DistanceY", 5, 3, 1, 3, Q("13.393242 mm")))
sketch10.addConstraint(Sketcher.Constraint("DistanceX", 0, 3, 6, 3, Q("23.19779 mm")))
sketch10.addConstraint(Sketcher.Constraint("DistanceY", -1, 1, 2, 3, Q("3.990157 mm")))
pocket6 = body.newObject("PartDesign::Pocket", "Pocket005")
pocket6.Profile = sketch10
pocket6.Length = 10
pocket6.Reversed = True

doc.recompute()
